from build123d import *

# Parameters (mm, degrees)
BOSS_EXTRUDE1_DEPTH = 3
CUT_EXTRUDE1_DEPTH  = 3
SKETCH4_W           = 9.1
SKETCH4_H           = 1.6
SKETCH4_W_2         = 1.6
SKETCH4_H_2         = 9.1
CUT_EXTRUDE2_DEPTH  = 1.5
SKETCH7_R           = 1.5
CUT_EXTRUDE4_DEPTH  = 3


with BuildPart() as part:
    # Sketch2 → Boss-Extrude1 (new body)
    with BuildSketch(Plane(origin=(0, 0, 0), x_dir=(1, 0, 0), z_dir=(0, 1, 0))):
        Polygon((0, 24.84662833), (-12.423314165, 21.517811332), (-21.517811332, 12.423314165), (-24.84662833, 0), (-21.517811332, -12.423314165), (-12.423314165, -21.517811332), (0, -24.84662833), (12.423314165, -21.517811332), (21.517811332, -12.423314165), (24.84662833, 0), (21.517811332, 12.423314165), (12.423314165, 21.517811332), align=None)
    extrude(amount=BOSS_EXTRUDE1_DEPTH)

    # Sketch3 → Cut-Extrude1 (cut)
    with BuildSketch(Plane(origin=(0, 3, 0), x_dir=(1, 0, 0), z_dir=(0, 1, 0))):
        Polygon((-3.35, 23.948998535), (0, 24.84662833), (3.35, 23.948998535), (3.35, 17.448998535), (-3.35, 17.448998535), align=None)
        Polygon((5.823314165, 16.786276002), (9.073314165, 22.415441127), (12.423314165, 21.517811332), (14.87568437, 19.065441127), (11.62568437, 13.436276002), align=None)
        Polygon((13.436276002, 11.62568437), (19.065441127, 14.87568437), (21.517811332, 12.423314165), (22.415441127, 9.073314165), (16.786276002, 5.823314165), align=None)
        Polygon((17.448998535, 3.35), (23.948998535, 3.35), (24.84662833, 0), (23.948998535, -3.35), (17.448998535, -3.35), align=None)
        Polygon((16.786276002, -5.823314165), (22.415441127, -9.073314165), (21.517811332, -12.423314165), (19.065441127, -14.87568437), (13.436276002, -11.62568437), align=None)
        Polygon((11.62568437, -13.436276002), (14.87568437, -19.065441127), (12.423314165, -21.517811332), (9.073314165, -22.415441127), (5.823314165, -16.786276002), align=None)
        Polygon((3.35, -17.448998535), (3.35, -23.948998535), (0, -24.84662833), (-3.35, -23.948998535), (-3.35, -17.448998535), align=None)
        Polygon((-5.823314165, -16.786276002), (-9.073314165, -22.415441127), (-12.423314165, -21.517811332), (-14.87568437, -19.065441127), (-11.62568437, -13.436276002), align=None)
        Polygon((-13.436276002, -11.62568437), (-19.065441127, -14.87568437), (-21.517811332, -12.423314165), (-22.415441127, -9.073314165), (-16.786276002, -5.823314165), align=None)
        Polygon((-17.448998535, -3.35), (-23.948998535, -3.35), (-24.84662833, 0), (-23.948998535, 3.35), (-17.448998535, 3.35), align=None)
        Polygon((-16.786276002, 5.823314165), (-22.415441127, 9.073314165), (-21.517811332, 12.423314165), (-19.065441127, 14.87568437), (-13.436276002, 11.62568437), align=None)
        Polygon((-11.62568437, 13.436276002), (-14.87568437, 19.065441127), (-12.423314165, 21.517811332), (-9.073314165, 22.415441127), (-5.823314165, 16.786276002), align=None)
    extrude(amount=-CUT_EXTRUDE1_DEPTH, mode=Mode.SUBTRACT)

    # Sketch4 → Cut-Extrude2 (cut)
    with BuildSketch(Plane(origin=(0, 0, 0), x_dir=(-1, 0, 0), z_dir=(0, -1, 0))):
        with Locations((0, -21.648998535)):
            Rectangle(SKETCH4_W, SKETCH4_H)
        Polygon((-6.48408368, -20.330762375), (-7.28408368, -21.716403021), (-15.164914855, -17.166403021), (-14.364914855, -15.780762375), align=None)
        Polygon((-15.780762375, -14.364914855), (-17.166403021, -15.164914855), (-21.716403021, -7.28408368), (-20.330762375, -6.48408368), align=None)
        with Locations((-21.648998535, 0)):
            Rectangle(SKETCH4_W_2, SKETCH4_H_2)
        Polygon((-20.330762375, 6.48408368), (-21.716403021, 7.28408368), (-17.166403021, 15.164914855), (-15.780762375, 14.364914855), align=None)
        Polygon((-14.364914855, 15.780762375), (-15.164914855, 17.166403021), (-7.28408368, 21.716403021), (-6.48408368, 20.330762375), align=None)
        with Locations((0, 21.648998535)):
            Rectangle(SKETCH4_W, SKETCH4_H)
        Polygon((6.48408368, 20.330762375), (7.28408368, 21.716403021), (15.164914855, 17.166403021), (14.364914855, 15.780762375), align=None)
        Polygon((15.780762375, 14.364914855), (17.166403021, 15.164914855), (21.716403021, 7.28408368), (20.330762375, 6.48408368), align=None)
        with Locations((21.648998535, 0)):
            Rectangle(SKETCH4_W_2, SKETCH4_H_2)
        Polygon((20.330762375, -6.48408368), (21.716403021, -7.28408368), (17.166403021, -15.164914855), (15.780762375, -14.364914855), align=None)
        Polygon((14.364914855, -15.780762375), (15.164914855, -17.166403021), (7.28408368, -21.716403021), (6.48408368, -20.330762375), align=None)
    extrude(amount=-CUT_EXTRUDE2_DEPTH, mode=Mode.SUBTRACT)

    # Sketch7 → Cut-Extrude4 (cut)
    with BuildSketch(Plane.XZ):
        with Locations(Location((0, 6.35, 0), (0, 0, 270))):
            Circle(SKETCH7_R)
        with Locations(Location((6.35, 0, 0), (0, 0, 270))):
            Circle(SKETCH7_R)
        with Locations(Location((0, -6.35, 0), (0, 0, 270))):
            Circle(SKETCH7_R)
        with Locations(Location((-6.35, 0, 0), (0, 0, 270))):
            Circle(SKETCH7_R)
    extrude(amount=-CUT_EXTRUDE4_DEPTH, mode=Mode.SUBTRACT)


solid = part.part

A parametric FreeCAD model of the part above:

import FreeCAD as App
import Part
import Sketcher
Q = App.Units.Quantity


def add_polygon(sketch, points):
    """Adds a closed chain of lines whose ends are joined by coincident constraints."""
    first, n = sketch.GeometryCount, len(points)
    for a, b in zip(points, points[1:] + points[:1]):
        sketch.addGeometry(Part.LineSegment(App.Vector(*a, 0), App.Vector(*b, 0)), False)
    for i in range(n):
        sketch.addConstraint(Sketcher.Constraint("Coincident", first + i, 2, first + (i + 1) % n, 1))

doc = App.newDocument("Part")
body = doc.addObject("PartDesign::Body", "Body")

sketch1 = body.newObject("Sketcher::SketchObject", "Sketch")
sketch1.AttachmentSupport = (doc.getObject("XZ_Plane"), [""])
sketch1.MapMode = "FlatFace"
add_polygon(sketch1, [(0, -25), (-12, -22), (-22, -12), (-25, 0), (-22, 12), (-12, 22), (0, 25), (12, 22), (22, 12), (25, 0), (22, -12), (12, -22)])
sketch1.addConstraint([
    Sketcher.Constraint("Symmetric", 0, 2, 6, 2, -1, 1),
    Sketcher.Constraint("Symmetric", 1, 2, 7, 2, -1, 1),
    Sketcher.Constraint("Symmetric", 2, 2, 8, 2, -1, 1),
    Sketcher.Constraint("Symmetric", 3, 2, 9, 2, -1, 1),
    Sketcher.Constraint("Symmetric", 4, 2, 10, 2, -1, 1),
    Sketcher.Constraint("Symmetric", 5, 2, 11, 2, -1, 1),
    Sketcher.Constraint("Symmetric", 4, 2, 6, 2, -2),
    Sketcher.Constraint("Symmetric", 3, 2, 7, 2, -2),
    Sketcher.Constraint("PointOnObject", 2, 2, -1),
    Sketcher.Constraint("PointOnObject", 5, 2, -2),
    Sketcher.Constraint("Perpendicular", 0, 3),
    Sketcher.Constraint("Perpendicular", 1, 4),
    Sketcher.Constraint("Equal", 0, 1),
    Sketcher.Constraint("Equal", 1, 2),
    Sketcher.Constraint("Angle", 0, Q("165 deg")),
    Sketcher.Constraint("Distance", 0, 12.861561),
])
pad1 = body.newObject("PartDesign::Pad", "Pad")
pad1.Profile = sketch1
pad1.Length = 3
pad1.Reversed = True

sketch2 = body.newObject("Sketcher::SketchObject", "Sketch001")
sketch2.AttachmentSupport = (doc.getObject("XZ_Plane"), [""])
sketch2.MapMode = "FlatFace"
sketch2.AttachmentOffset = App.Placement(App.Vector(0, 0, -3), App.Rotation())
add_polygon(sketch2, [(0, -24.8), (-3.4, -23.9), (-3.4, -17.4), (3.4, -17.4), (3.4, -23.9)])
add_polygon(sketch2, [(9.1, -22.4), (5.8, -16.8), (11.6, -13.4), (14.9, -19.1), (12.4, -21.5)])
add_polygon(sketch2, [(19.1, -14.9), (13.4, -11.6), (16.8, -5.8), (22.4, -9.1), (21.5, -12.4)])
add_polygon(sketch2, [(23.9, -3.4), (17.4, -3.4), (17.4, 3.4), (23.9, 3.4), (24.8, 0)])
add_polygon(sketch2, [(22.4, 9.1), (16.8, 5.8), (13.4, 11.6), (19.1, 14.9), (21.5, 12.4)])
add_polygon(sketch2, [(14.9, 19.1), (11.6, 13.4), (5.8, 16.8), (9.1, 22.4), (12.4, 21.5)])
add_polygon(sketch2, [(3.4, 23.9), (3.4, 17.4), (-3.4, 17.4), (-3.4, 23.9), (0, 24.8)])
add_polygon(sketch2, [(-9.1, 22.4), (-5.8, 16.8), (-11.6, 13.4), (-14.9, 19.1), (-12.4, 21.5)])
add_polygon(sketch2, [(-19.1, 14.9), (-13.4, 11.6), (-16.8, 5.8), (-22.4, 9.1), (-21.5, 12.4)])
add_polygon(sketch2, [(-23.9, 3.4), (-17.4, 3.4), (-17.4, -3.4), (-23.9, -3.4), (-24.8, 0)])
add_polygon(sketch2, [(-22.4, -9.1), (-16.8, -5.8), (-13.4, -11.6), (-19.1, -14.9), (-21.5, -12.4)])
add_polygon(sketch2, [(-14.9, -19.1), (-11.6, -13.4), (-5.8, -16.8), (-9.1, -22.4), (-12.4, -21.5)])
sketch2.addConstraint([
    Sketcher.Constraint("Vertical", 1),
    Sketcher.Constraint("Horizontal", 2),
    Sketcher.Constraint("Vertical", 3),
    Sketcher.Constraint("Horizontal", 15),
    Sketcher.Constraint("Vertical", 16),
    Sketcher.Constraint("Horizontal", 17),
    Sketcher.Constraint("Vertical", 30),
    Sketcher.Constraint("Horizontal", 31),
    Sketcher.Constraint("Vertical", 32),
    Sketcher.Constraint("Horizontal", 45),
    Sketcher.Constraint("Vertical", 46),
    Sketcher.Constraint("Horizontal", 47),
    Sketcher.Constraint("Symmetric", 1, 2, 30, 2, -1, 1),
    Sketcher.Constraint("Symmetric", 3, 2, 32, 2, -1, 1),
    Sketcher.Constraint("Symmetric", 4, 2, 33, 2, -1, 1),
    Sketcher.Constraint("Symmetric", 5, 2, 35, 2, -1, 1),
    Sketcher.Constraint("Symmetric", 6, 2, 36, 2, -1, 1),
    Sketcher.Constraint("Symmetric", 7, 2, 37, 2, -1, 1),
    Sketcher.Constraint("Symmetric", 8, 2, 38, 2, -1, 1),
    Sketcher.Constraint("Symmetric", 9, 2, 39, 2, -1, 1),
    Sketcher.Constraint("Symmetric", 10, 2, 40, 2, -1, 1),
    Sketcher.Constraint("Symmetric", 11, 2, 41, 2, -1, 1),
    Sketcher.Constraint("Symmetric", 12, 2, 42, 2, -1, 1),
    Sketcher.Constraint("Symmetric", 13, 2, 43, 2, -1, 1),
    Sketcher.Constraint("Symmetric", 14, 2, 44, 2, -1, 1),
    Sketcher.Constraint("Symmetric", 15, 2, 45, 2, -1, 1),
    Sketcher.Constraint("Symmetric", 17, 2, 47, 2, -1, 1),
    Sketcher.Constraint("Symmetric", 18, 2, 48, 2, -1, 1),
    Sketcher.Constraint("Symmetric", 20, 2, 50, 2, -1, 1),
    Sketcher.Constraint("Symmetric", 21, 2, 51, 2, -1, 1),
    Sketcher.Constraint("Symmetric", 22, 2, 52, 2, -1, 1),
    Sketcher.Constraint("Symmetric", 23, 2, 53, 2, -1, 1),
    Sketcher.Constraint("Symmetric", 24, 2, 54, 2, -1, 1),
    Sketcher.Constraint("Symmetric", 25, 2, 55, 2, -1, 1),
    Sketcher.Constraint("Symmetric", 26, 2, 56, 2, -1, 1),
    Sketcher.Constraint("Symmetric", 27, 2, 57, 2, -1, 1),
    Sketcher.Constraint("Symmetric", 28, 2, 58, 2, -1, 1),
    Sketcher.Constraint("Symmetric", 29, 2, 59, 2, -1, 1),
    Sketcher.Constraint("Symmetric", 0, 2, 3, 2, -2),
    Sketcher.Constraint("Symmetric", 26, 2, 35, 2, -2),
    Sketcher.Constraint("Symmetric", 25, 2, 36, 2, -2),
    Sketcher.Constraint("Symmetric", 29, 2, 37, 2, -2),
    Sketcher.Constraint("Symmetric", 28, 2, 38, 2, -2),
    Sketcher.Constraint("Symmetric", 27, 2, 39, 2, -2),
    Sketcher.Constraint("Symmetric", 21, 2, 40, 2, -2),
    Sketcher.Constraint("Symmetric", 20, 2, 41, 2, -2),
    Sketcher.Constraint("Symmetric", 24, 2, 42, 2, -2),
    Sketcher.Constraint("Symmetric", 23, 2, 43, 2, -2),
    Sketcher.Constraint("Symmetric", 22, 2, 44, 2, -2),
    Sketcher.Constraint("Symmetric", 19, 2, 47, 2, -2),
    Sketcher.Constraint("PointOnObject", 4, 2, -2),
    Sketcher.Constraint("PointOnObject", 18, 2, -1),
    Sketcher.Constraint("Perpendicular", 5, 6),
    Sketcher.Constraint("Perpendicular", 6, 7),
    Sketcher.Constraint("Parallel", 4, 9),
    Sketcher.Constraint("Perpendicular", 10, 11),
    Sketcher.Constraint("Perpendicular", 11, 12),
    Sketcher.Constraint("Perpendicular", 0, 13),
    Sketcher.Constraint("Parallel", 8, 14),
    Sketcher.Constraint("Perpendicular", 9, 18),
    Sketcher.Constraint("Perpendicular", 7, 20),
    Sketcher.Constraint("Perpendicular", 14, 23),
    Sketcher.Constraint("Parallel", 28, 34),
    Sketcher.Constraint("Parallel", 43, 49),
    Sketcher.Constraint("Equal", 47, 1),
    Sketcher.Constraint("Equal", 31, 16),
    Sketcher.Constraint("Equal", 5, 7),
    Sketcher.Constraint("Equal", 4, 8),
    Sketcher.Constraint("Equal", 8, 9),
    Sketcher.Constraint("Equal", 7, 10),
    Sketcher.Constraint("Equal", 6, 11),
    Sketcher.Constraint("Equal", 10, 12),
    Sketcher.Constraint("Angle", 0, Q("165 deg")),
    Sketcher.Constraint("DistanceX", 2, 1, 2, 2, 6.7),
    Sketcher.Constraint("DistanceX", 15, 2, 15, 1, 6.5),
    Sketcher.Constraint("Distance", 5, 6.5),
    Sketcher.Constraint("DistanceY", 0, 2, -1, 1, 23.948999),
    Sketcher.Constraint("DistanceX", -1, 1, 15, 2, 17.448999),
    Sketcher.Constraint("DistanceY", 7, 2, -1, 1, 19.065441),
    Sketcher.Constraint("DistanceX", -1, 1, 12, 2, 22.415441),
    Sketcher.Constraint("DistanceX", 6, 2, 10, 2, 1.810592),
    Sketcher.Constraint("DistanceY", 6, 2, 10, 2, 1.810592),
])
pocket1 = body.newObject("PartDesign::Pocket", "Pocket")
pocket1.Profile = sketch2
pocket1.Length = 3
pocket1.Reversed = True

sketch3 = body.newObject("Sketcher::SketchObject", "Sketch002")
sketch3.AttachmentSupport = (doc.getObject("XZ_Plane"), [""])
sketch3.MapMode = "FlatFace"
add_polygon(sketch3, [(4.5, 20.8), (4.5, 22.4), (-4.5, 22.4), (-4.5, 20.8)])
add_polygon(sketch3, [(7.3, 21.7), (6.5, 20.3), (14.4, 15.8), (15.2, 17.2)])
add_polygon(sketch3, [(17.2, 15.2), (15.8, 14.4), (20.3, 6.5), (21.7, 7.3)])
add_polygon(sketch3, [(22.4, -4.5), (22.4, 4.5), (20.8, 4.5), (20.8, -4.5)])
add_polygon(sketch3, [(21.7, -7.3), (20.3, -6.5), (15.8, -14.4), (17.2, -15.2)])
add_polygon(sketch3, [(15.2, -17.2), (14.4, -15.8), (6.5, -20.3), (7.3, -21.7)])
add_polygon(sketch3, [(4.5, -22.4), (4.5, -20.8), (-4.5, -20.8), (-4.5, -22.4)])
add_polygon(sketch3, [(-7.3, -21.7), (-6.5, -20.3), (-14.4, -15.8), (-15.2, -17.2)])
add_polygon(sketch3, [(-17.2, -15.2), (-15.8, -14.4), (-20.3, -6.5), (-21.7, -7.3)])
add_polygon(sketch3, [(-20.8, -4.5), (-20.8, 4.5), (-22.4, 4.5), (-22.4, -4.5)])
add_polygon(sketch3, [(-21.7, 7.3), (-20.3, 6.5), (-15.8, 14.4), (-17.2, 15.2)])
add_polygon(sketch3, [(-15.2, 17.2), (-14.4, 15.8), (-6.5, 20.3), (-7.3, 21.7)])
sketch3.addConstraint([
    Sketcher.Constraint("Vertical", 0),
    Sketcher.Constraint("Horizontal", 1),
    Sketcher.Constraint("Vertical", 2),
    Sketcher.Constraint("Horizontal", 3),
    Sketcher.Constraint("Vertical", 12),
    Sketcher.Constraint("Horizontal", 13),
    Sketcher.Constraint("Vertical", 14),
    Sketcher.Constraint("Horizontal", 15),
    Sketcher.Constraint("Vertical", 24),
    Sketcher.Constraint("Horizontal", 25),
    Sketcher.Constraint("Vertical", 26),
    Sketcher.Constraint("Horizontal", 27),
    Sketcher.Constraint("Vertical", 36),
    Sketcher.Constraint("Horizontal", 37),
    Sketcher.Constraint("Vertical", 38),
    Sketcher.Constraint("Horizontal", 39),
    Sketcher.Constraint("Symmetric", 2, 2, 24, 2, -1, 1),
    Sketcher.Constraint("Symmetric", 0, 2, 26, 2, -1, 1),
    Sketcher.Constraint("Symmetric", 4, 2, 28, 2, -1, 1),
    Sketcher.Constraint("Symmetric", 5, 2, 29, 2, -1, 1),
    Sketcher.Constraint("Symmetric", 6, 2, 30, 2, -1, 1),
    Sketcher.Constraint("Symmetric", 7, 2, 31, 2, -1, 1),
    Sketcher.Constraint("Symmetric", 8, 2, 32, 2, -1, 1),
    Sketcher.Constraint("Symmetric", 9, 2, 33, 2, -1, 1),
    Sketcher.Constraint("Symmetric", 10, 2, 34, 2, -1, 1),
    Sketcher.Constraint("Symmetric", 11, 2, 35, 2, -1, 1),
    Sketcher.Constraint("Symmetric", 14, 2, 36, 2, -1, 1),
    Sketcher.Constraint("Symmetric", 12, 2, 38, 2, -1, 1),
    Sketcher.Constraint("Symmetric", 16, 2, 40, 2, -1, 1),
    Sketcher.Constraint("Symmetric", 17, 2, 41, 2, -1, 1),
    Sketcher.Constraint("Symmetric", 18, 2, 42, 2, -1, 1),
    Sketcher.Constraint("Symmetric", 19, 2, 43, 2, -1, 1),
    Sketcher.Constraint("Symmetric", 20, 2, 44, 2, -1, 1),
    Sketcher.Constraint("Symmetric", 21, 2, 45, 2, -1, 1),
    Sketcher.Constraint("Symmetric", 22, 2, 46, 2, -1, 1),
    Sketcher.Constraint("Symmetric", 23, 2, 47, 2, -1, 1),
    Sketcher.Constraint("Symmetric", 21, 2, 28, 2, -2),
    Sketcher.Constraint("Symmetric", 20, 2, 29, 2, -2),
    Sketcher.Constraint("Symmetric", 23, 2, 30, 2, -2),
    Sketcher.Constraint("Symmetric", 22, 2, 31, 2, -2),
    Sketcher.Constraint("Symmetric", 17, 2, 32, 2, -2),
    Sketcher.Constraint("Symmetric", 16, 2, 33, 2, -2),
    Sketcher.Constraint("Symmetric", 19, 2, 34, 2, -2),
    Sketcher.Constraint("Symmetric", 18, 2, 35, 2, -2),
    Sketcher.Constraint("Perpendicular", 4, 5),
    Sketcher.Constraint("Perpendicular", 5, 6),
    Sketcher.Constraint("Perpendicular", 6, 7),
    Sketcher.Constraint("Perpendicular", 8, 9),
    Sketcher.Constraint("Perpendicular", 9, 10),
    Sketcher.Constraint("Perpendicular", 10, 11),
    Sketcher.Constraint("Parallel", 7, 16),
    Sketcher.Constraint("Horizontal", 13, 2, 36, 2),
    Sketcher.Constraint("Vertical", 3, 2, 24, 2),
    Sketcher.Constraint("Equal", 39, 0),
    Sketcher.Constraint("Equal", 27, 12),
    Sketcher.Constraint("Equal", 6, 8),
    Sketcher.Constraint("Equal", 7, 9),
    Sketcher.Constraint("Angle", 4, Q("-120 deg")),
    Sketcher.Constraint("DistanceX", 1, 2, 1, 1, 9.1),
    Sketcher.Constraint("DistanceX", 13, 2, 13, 1, 1.6),
    Sketcher.Constraint("Distance", 4, 1.6),
    Sketcher.Constraint("Distance", 5, 9.1),
    Sketcher.Constraint("DistanceY", -1, 1, 0, 2, 22.448999),
    Sketcher.Constraint("DistanceX", -1, 1, 12, 2, 22.448999),
    Sketcher.Constraint("DistanceY", 8, 2, 6, 2, 2.801488),
    Sketcher.Constraint("DistanceX", 4, 2, 8, 2, 9.296679),
    Sketcher.Constraint("DistanceX", -1, 1, 4, 2, 6.484084),
    Sketcher.Constraint("DistanceY", -1, 1, 4, 2, 20.330762),
])
pocket2 = body.newObject("PartDesign::Pocket", "Pocket001")
pocket2.Profile = sketch3
pocket2.Length = 1.5

sketch4 = body.newObject("Sketcher::SketchObject", "Sketch003")
sketch4.AttachmentSupport = (doc.getObject("XZ_Plane"), [""])
sketch4.MapMode = "FlatFace"
sketch4.addGeometry([
    Part.Circle(App.Vector(0, 6.3, 0), App.Vector(0, 0, 1), 1.5),
    Part.Circle(App.Vector(6.3, 0, 0), App.Vector(0, 0, 1), 1.5),
    Part.Circle(App.Vector(0, -6.3, 0), App.Vector(0, 0, 1), 1.5),
    Part.Circle(App.Vector(-6.3, 0, 0), App.Vector(0, 0, 1), 1.5),
], False)
sketch4.addConstraint([
    Sketcher.Constraint("Equal", 0, 1),
    Sketcher.Constraint("Equal", 1, 2),
    Sketcher.Constraint("Equal", 2, 3),
    Sketcher.Constraint("Symmetric", 0, 3, 2, 3, -1, 1),
    Sketcher.Constraint("Symmetric", 1, 3, 3, 3, -1, 1),
    Sketcher.Constraint("PointOnObject", 0, 3, -2),
    Sketcher.Constraint("PointOnObject", 1, 3, -1),
    Sketcher.Constraint("Diameter", 0, 3.0),
    Sketcher.Constraint("DistanceY", 2, 3, 0, 3, 12.7),
    Sketcher.Constraint("DistanceX", 3, 3, 1, 3, 12.7),
])
pocket3 = body.newObject("PartDesign::Pocket", "Pocket002")
pocket3.Profile = sketch4
pocket3.Length = 3

doc.recompute()
